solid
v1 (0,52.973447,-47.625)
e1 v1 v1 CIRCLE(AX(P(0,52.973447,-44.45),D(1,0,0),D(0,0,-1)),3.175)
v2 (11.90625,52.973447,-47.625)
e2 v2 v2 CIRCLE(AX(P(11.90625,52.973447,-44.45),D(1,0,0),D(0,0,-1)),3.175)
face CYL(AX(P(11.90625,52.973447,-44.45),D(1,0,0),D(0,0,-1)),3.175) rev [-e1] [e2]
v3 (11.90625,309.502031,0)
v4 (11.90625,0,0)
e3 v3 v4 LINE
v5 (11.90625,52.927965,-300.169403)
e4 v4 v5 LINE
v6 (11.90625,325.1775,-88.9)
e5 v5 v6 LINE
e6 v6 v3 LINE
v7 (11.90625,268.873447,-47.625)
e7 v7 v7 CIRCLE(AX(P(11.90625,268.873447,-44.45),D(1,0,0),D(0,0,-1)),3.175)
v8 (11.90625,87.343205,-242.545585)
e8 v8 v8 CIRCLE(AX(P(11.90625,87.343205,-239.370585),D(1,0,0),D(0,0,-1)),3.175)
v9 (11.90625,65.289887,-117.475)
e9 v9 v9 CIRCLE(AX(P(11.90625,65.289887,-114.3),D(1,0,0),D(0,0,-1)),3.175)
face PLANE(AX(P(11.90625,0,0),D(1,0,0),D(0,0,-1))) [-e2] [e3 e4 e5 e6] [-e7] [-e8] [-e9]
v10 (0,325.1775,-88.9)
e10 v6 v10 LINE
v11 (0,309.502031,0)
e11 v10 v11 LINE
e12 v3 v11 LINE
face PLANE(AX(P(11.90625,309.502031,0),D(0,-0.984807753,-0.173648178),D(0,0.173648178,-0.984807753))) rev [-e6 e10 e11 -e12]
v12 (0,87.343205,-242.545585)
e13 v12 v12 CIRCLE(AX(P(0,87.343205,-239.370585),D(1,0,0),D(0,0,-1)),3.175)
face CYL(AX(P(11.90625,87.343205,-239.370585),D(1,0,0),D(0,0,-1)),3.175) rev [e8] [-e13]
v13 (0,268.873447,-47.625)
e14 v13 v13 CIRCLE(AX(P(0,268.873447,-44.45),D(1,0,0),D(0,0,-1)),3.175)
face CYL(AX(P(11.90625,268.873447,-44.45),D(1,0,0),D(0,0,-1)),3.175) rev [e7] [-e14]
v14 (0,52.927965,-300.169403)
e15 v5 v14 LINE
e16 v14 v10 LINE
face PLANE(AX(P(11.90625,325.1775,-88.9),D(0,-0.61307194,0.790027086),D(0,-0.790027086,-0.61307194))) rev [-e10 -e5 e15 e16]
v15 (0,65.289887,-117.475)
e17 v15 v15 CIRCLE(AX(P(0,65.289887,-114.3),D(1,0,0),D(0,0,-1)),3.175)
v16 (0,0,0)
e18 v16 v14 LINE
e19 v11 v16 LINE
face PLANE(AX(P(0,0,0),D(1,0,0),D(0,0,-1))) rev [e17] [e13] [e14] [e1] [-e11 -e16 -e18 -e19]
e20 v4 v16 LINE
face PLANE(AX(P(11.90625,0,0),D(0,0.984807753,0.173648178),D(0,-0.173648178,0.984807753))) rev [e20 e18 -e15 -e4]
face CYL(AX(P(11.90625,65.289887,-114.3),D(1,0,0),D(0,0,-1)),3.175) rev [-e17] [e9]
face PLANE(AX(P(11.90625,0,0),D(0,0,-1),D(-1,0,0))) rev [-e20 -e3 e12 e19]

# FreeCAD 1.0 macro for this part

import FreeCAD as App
import Part
import Sketcher
from FreeCAD import Vector
Q = App.Units.Quantity

doc = App.newDocument("Part")
body = doc.addObject("PartDesign::Body", "Body")

# Sketch on YZ plane
sketch1 = body.newObject("Sketcher::SketchObject", "Sketch")
sketch1.AttachmentSupport = (doc.getObject("YZ_Plane"), [""])
sketch1.MapMode = "FlatFace"
sketch1.addGeometry(Part.LineSegment(Vector(310, 0, 0), Vector(0, 0, 0)), False)
sketch1.addGeometry(Part.LineSegment(Vector(0, 0, 0), Vector(53, -300, 0)), False)
sketch1.addGeometry(Part.LineSegment(Vector(53, -300, 0), Vector(325, -89, 0)), False)
sketch1.addGeometry(Part.LineSegment(Vector(325, -89, 0), Vector(310, 0, 0)), False)
sketch1.addConstraint(Sketcher.Constraint("Coincident", 0, 2, 1, 1))
sketch1.addConstraint(Sketcher.Constraint("Coincident", 1, 2, 2, 1))
sketch1.addConstraint(Sketcher.Constraint("Coincident", 2, 2, 3, 1))
sketch1.addConstraint(Sketcher.Constraint("Coincident", 3, 2, 0, 1))
sketch1.addConstraint(Sketcher.Constraint("Horizontal", 0))
sketch1.addConstraint(Sketcher.Constraint("Coincident", 0, 2, -1, 1))
sketch1.addConstraint(Sketcher.Constraint("Parallel", 1, 3))
sketch1.addConstraint(Sketcher.Constraint("Distance", 1, Q("12 in")))
sketch1.addConstraint(Sketcher.Constraint("Angle", 1, Q("-80 deg")))
sketch1.addConstraint(Sketcher.Constraint("DistanceY", 2, 2, -1, 1, Q("3.5 in")))
sketch1.addConstraint(Sketcher.Constraint("DistanceX", 0, 2, 0, 1, 309.502031))
pad1 = body.newObject("PartDesign::Pad", "Pad")
pad1.Profile = sketch1
pad1.Length = Q("0.46875 in")

# Sketch on YZ plane
sketch2 = body.newObject("Sketcher::SketchObject", "Sketch001")
sketch2.AttachmentSupport = (doc.getObject("YZ_Plane"), [""])
sketch2.MapMode = "FlatFace"
sketch2.AttachmentOffset = App.Placement(Vector(0, 0, 0.46875 * 25.4), App.Rotation())
sketch2.addGeometry(Part.Circle(Vector(53, -44.5, 0), Vector(0, 0, 1), 3.2), False)
sketch2.addGeometry(Part.Circle(Vector(65.3, -114.3, 0), Vector(0, 0, 1), 3.2), False)
sketch2.addGeometry(Part.Circle(Vector(87.3, -239.4, 0), Vector(0, 0, 1), 3.2), False)
sketch2.addGeometry(Part.Circle(Vector(268.9, -44.5, 0), Vector(0, 0, 1), 3.2), False)
sketch2.addConstraint(Sketcher.Constraint("Equal", 0, 1))
sketch2.addConstraint(Sketcher.Constraint("Equal", 1, 2))
sketch2.addConstraint(Sketcher.Constraint("Equal", 2, 3))
sketch2.addConstraint(Sketcher.Constraint("Horizontal", 0, 3, 3, 3))
sketch2.addConstraint(Sketcher.Constraint("Diameter", 0, Q("0.25 in")))
sketch2.addConstraint(Sketcher.Constraint("DistanceY", 1, 3, -1, 1, Q("4.5 in")))
sketch2.addConstraint(Sketcher.Constraint("DistanceX", 0, 3, 3, 3, Q("8.5 in")))
sketch2.addConstraint(Sketcher.Constraint("DistanceY", 0, 3, -1, 1, Q("1.75 in")))
sketch2.addConstraint(Sketcher.Constraint("DistanceX", 0, 3, 1, 3, 12.31644))
sketch2.addConstraint(Sketcher.Constraint("DistanceX", 1, 3, 2, 3, 22.053319))
sketch2.addConstraint(Sketcher.Constraint("DistanceX", -1, 1, 0, 3, 52.973447))
sketch2.addConstraint(Sketcher.Constraint("DistanceY", 2, 3, -1, 1, 239.370585))
doc.recompute()
hole = body.newObject("PartDesign::Hole", "Hole")
hole.Profile = sketch2
hole.ThreadType = "None"
hole.Diameter = Q("0.25 in")
hole.DepthType = "ThroughAll"

doc.recompute()
